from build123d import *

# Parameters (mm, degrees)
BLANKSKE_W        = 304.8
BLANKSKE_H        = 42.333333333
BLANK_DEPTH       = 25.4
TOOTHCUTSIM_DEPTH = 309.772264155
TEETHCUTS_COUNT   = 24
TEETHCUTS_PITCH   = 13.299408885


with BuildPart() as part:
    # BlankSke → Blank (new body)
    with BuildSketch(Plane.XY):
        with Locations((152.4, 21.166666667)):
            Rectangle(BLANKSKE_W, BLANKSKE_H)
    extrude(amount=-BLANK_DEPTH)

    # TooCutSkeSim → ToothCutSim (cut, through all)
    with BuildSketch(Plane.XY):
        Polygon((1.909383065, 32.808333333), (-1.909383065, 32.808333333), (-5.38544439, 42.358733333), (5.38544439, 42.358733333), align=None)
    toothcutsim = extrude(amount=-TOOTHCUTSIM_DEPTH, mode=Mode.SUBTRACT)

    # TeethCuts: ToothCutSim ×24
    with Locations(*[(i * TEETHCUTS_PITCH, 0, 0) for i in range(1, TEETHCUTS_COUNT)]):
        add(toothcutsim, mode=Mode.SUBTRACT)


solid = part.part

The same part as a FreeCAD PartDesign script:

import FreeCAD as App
import Part
import Sketcher

V = App.Vector
Q = App.Units.Quantity


def add_polygon(sketch, points):
    """Adds a closed chain of lines whose ends are joined by coincident constraints."""
    first, n = sketch.GeometryCount, len(points)
    for a, b in zip(points, points[1:] + points[:1]):
        sketch.addGeometry(Part.LineSegment(App.Vector(*a, 0), App.Vector(*b, 0)), False)
    for i in range(n):
        sketch.addConstraint(Sketcher.Constraint("Coincident", first + i, 2, first + (i + 1) % n, 1))

doc = App.newDocument("Part")
params = doc.addObject("Spreadsheet::Sheet", "Params")
for row, (alias, value) in enumerate([
    ("sketch1_width", "12 in"),
    ("pad1_length", "1 in"),
    ("linearpattern_pitch", "13.299409 mm"),
], start=1):
    params.set(f"A{row}", alias)
    params.set(f"B{row}", "=" + value)
    params.setAlias(f"B{row}", alias)

body = doc.addObject("PartDesign::Body", "Body")

# Sketch on XY plane
sketch1 = doc.addObject("Sketcher::SketchObject", "Sketch")
body.addObject(sketch1)
sketch1.AttachmentSupport = (doc.XY_Plane, [""])
sketch1.MapMode = "FlatFace"
add_polygon(sketch1, [(0, 42), (0, 0), (305, 0), (305, 42)])  # lines 0-3
sketch1.addConstraint(Sketcher.Constraint("Vertical", 0))
sketch1.addConstraint(Sketcher.Constraint("Horizontal", 1))
sketch1.addConstraint(Sketcher.Constraint("Vertical", 2))
sketch1.addConstraint(Sketcher.Constraint("Horizontal", 3))
sketch1.addConstraint(Sketcher.Constraint("Coincident", 0, 2, -1, 1))
sketch1.addConstraint(Sketcher.Constraint("DistanceX", 1, 1, 1, 2, Q("12 in")))
sketch1.addConstraint(Sketcher.Constraint("DistanceY", 0, 2, 0, 1, Q("42.333333 mm")))
sketch1.setExpression("Constraints[9]", "Params.sketch1_width")
pad1 = doc.addObject("PartDesign::Pad", "Pad")
body.addObject(pad1)
pad1.Profile = sketch1
pad1.setExpression("Length", "Params.pad1_length")
pad1.Reversed = True

# Sketch on XY plane
sketch2 = doc.addObject("Sketcher::SketchObject", "Sketch001")
body.addObject(sketch2)
sketch2.AttachmentSupport = (doc.XY_Plane, [""])
sketch2.MapMode = "FlatFace"
add_polygon(sketch2, [(-1.9, 32.8), (1.9, 32.8), (5.4, 42.4), (-5.4, 42.4)])  # lines 0-3
sketch2.addConstraint(Sketcher.Constraint("Horizontal", 0))
sketch2.addConstraint(Sketcher.Constraint("Horizontal", 2))
sketch2.addConstraint(Sketcher.Constraint("Equal", 1, 3))
sketch2.addConstraint(Sketcher.Constraint("Angle", 1, Q("70 deg")))
sketch2.addConstraint(Sketcher.Constraint("DistanceY", 0, 2, 1, 2, Q("0.376 in")))
sketch2.addConstraint(Sketcher.Constraint("DistanceX", 2, 2, 2, 1, Q("10.770889 mm")))
sketch2.addConstraint(Sketcher.Constraint("DistanceX", -1, 1, 0, 2, Q("1.909383 mm")))
sketch2.addConstraint(Sketcher.Constraint("DistanceY", -1, 1, 0, 2, Q("32.808333 mm")))
pocket1 = doc.addObject("PartDesign::Pocket", "Pocket")
body.addObject(pocket1)
pocket1.Profile = sketch2
pocket1.Type = "ThroughAll"
doc.recompute()

linearpattern = doc.addObject("PartDesign::LinearPattern", "LinearPattern")
body.addObject(linearpattern)
linearpattern.Originals = [pocket1]
linearpattern.Direction = (doc.X_Axis, [""])
linearpattern.Mode = "offset"
linearpattern.setExpression("Offset", "Params.linearpattern_pitch")
linearpattern.Occurrences = 24
body.Tip = linearpattern

doc.recompute()
